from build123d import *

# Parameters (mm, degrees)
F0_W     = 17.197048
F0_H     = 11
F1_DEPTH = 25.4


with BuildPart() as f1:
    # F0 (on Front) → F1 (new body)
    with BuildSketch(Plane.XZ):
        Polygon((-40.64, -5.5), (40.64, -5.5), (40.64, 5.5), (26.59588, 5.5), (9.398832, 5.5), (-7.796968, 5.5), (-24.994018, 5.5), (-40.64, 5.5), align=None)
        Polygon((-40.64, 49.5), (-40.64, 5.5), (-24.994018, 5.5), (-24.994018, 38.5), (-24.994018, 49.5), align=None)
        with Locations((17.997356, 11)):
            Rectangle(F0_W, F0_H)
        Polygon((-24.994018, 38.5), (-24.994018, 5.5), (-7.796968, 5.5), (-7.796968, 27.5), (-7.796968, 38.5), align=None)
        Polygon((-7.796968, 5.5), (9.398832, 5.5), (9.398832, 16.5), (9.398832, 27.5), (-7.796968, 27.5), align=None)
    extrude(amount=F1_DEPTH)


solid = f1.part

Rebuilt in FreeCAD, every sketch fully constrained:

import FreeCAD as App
import Part
import Sketcher
Q = App.Units.Quantity


def add_polygon(sketch, points):
    """Adds a closed chain of lines whose ends are joined by coincident constraints."""
    first, n = sketch.GeometryCount, len(points)
    for a, b in zip(points, points[1:] + points[:1]):
        sketch.addGeometry(Part.LineSegment(App.Vector(*a, 0), App.Vector(*b, 0)), False)
    for i in range(n):
        sketch.addConstraint(Sketcher.Constraint("Coincident", first + i, 2, first + (i + 1) % n, 1))

doc = App.newDocument("Part")
body = doc.addObject("PartDesign::Body", "Body")

# Sketch on XZ plane
sketch1 = doc.addObject("Sketcher::SketchObject", "Sketch")
body.addObject(sketch1)
sketch1.AttachmentSupport = (doc.XZ_Plane, [""])
sketch1.MapMode = "FlatFace"
add_polygon(sketch1, [(-41, -6), (41, -6), (41, 6), (27, 6), (27, 16), (9, 16), (9, 28), (-8, 28), (-8, 38), (-25, 38), (-25, 50), (-41, 50)])  # lines 0-11
sketch1.addConstraint([
    Sketcher.Constraint("Horizontal", 0),
    Sketcher.Constraint("Vertical", 1),
    Sketcher.Constraint("Horizontal", 2),
    Sketcher.Constraint("Vertical", 3),
    Sketcher.Constraint("Horizontal", 4),
    Sketcher.Constraint("Vertical", 5),
    Sketcher.Constraint("Horizontal", 6),
    Sketcher.Constraint("Vertical", 7),
    Sketcher.Constraint("Horizontal", 8),
    Sketcher.Constraint("Vertical", 9),
    Sketcher.Constraint("Horizontal", 10),
    Sketcher.Constraint("Vertical", 11),
    Sketcher.Constraint("Symmetric", 1, 2, 11, 2, -1, 1),
    Sketcher.Constraint("Equal", 4, 8),
    Sketcher.Constraint("Equal", 1, 3),
    Sketcher.Constraint("Equal", 3, 5),
    Sketcher.Constraint("Equal", 5, 7),
    Sketcher.Constraint("Equal", 7, 9),
    Sketcher.Constraint("DistanceX", 0, 1, 0, 2, Q("3.2 in")),
    Sketcher.Constraint("DistanceX", 6, 2, 6, 1, Q("0.677 in")),
    Sketcher.Constraint("DistanceY", 1, 1, 1, 2, 11.0),
    Sketcher.Constraint("DistanceX", 2, 2, 2, 1, 14.04412),
    Sketcher.Constraint("DistanceX", 4, 2, 4, 1, 17.197048),
])
pad1 = doc.addObject("PartDesign::Pad", "Pad")
body.addObject(pad1)
pad1.Profile = sketch1
pad1.Length = Q("1 in")

doc.recompute()
